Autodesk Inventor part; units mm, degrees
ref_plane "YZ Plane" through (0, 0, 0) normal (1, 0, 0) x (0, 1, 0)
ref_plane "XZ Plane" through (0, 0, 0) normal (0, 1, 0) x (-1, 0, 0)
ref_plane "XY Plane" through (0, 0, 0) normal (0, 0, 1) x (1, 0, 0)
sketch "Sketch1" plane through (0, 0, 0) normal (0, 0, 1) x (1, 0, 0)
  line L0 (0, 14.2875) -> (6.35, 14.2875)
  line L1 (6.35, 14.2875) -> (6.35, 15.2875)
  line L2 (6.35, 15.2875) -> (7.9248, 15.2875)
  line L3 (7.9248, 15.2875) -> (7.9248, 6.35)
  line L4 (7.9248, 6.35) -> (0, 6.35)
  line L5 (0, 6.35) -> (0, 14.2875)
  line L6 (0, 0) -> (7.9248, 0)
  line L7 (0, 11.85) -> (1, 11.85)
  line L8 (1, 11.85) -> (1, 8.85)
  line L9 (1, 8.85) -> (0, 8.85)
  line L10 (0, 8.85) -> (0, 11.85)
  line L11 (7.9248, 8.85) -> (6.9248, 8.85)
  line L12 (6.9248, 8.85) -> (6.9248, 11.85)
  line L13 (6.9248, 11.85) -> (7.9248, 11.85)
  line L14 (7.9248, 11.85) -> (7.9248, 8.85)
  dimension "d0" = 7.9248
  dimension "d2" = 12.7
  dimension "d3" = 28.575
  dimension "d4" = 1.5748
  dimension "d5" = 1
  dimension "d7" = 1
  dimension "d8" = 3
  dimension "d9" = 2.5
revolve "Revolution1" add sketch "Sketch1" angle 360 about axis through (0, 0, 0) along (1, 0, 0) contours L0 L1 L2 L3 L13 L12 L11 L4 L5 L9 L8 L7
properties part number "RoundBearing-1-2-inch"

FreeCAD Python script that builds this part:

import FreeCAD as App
import Part
import Sketcher

V = App.Vector
Q = App.Units.Quantity


def add_polygon(sketch, points):
    """Adds a closed chain of lines whose ends are joined by coincident constraints."""
    first, n = sketch.GeometryCount, len(points)
    for a, b in zip(points, points[1:] + points[:1]):
        sketch.addGeometry(Part.LineSegment(App.Vector(*a, 0), App.Vector(*b, 0)), False)
    for i in range(n):
        sketch.addConstraint(Sketcher.Constraint("Coincident", first + i, 2, first + (i + 1) % n, 1))

doc = App.newDocument("Part")
params = doc.addObject("Spreadsheet::Sheet", "Params")
for row, (alias, value) in enumerate([
    ("sketch1_width", "0.312 in"),
    ("sketch1_width2", "0.062 in"),
    ("revolution_angle", "360 deg"),
], start=1):
    params.set(f"A{row}", alias)
    params.set(f"B{row}", "=" + value)
    params.setAlias(f"B{row}", alias)

body = doc.addObject("PartDesign::Body", "Body")

sketch1 = doc.addObject("Sketcher::SketchObject", "Sketch")
body.addObject(sketch1)
sketch1.AttachmentSupport = (doc.XY_Plane, [""])
sketch1.MapMode = "FlatFace"
add_polygon(sketch1, [(6.3, 14.3), (0, 14.3), (0, 11.8), (1, 11.8), (1, 8.8), (0, 8.8), (0, 6.3), (7.9, 6.3), (7.9, 8.8), (6.9, 8.8), (6.9, 11.8), (7.9, 11.8), (7.9, 15.3), (6.3, 15.3)])
sketch1.addConstraint([
    Sketcher.Constraint("Horizontal", 0),
    Sketcher.Constraint("Vertical", 1),
    Sketcher.Constraint("Horizontal", 2),
    Sketcher.Constraint("Vertical", 3),
    Sketcher.Constraint("Horizontal", 4),
    Sketcher.Constraint("Vertical", 5),
    Sketcher.Constraint("Horizontal", 6),
    Sketcher.Constraint("Vertical", 7),
    Sketcher.Constraint("Horizontal", 8),
    Sketcher.Constraint("Vertical", 9),
    Sketcher.Constraint("Horizontal", 10),
    Sketcher.Constraint("Vertical", 11),
    Sketcher.Constraint("Horizontal", 12),
    Sketcher.Constraint("Vertical", 13),
    Sketcher.Constraint("PointOnObject", 0, 2, -2),
    Sketcher.Constraint("PointOnObject", 4, 2, -2),
    Sketcher.Constraint("Horizontal", 4, 2, 7, 2),
    Sketcher.Constraint("Horizontal", 2, 2, 9, 2),
    Sketcher.Constraint("Vertical", 7, 2, 10, 2),
    Sketcher.Constraint("Equal", 4, 8),
    Sketcher.Constraint("Equal", 10, 13),
    Sketcher.Constraint("DistanceX", 6, 1, 6, 2, Q("0.312 in")),
    Sketcher.Constraint("DistanceX", 12, 2, 12, 1, Q("0.062 in")),
    Sketcher.Constraint("DistanceY", 3, 2, 3, 1, Q("0.1181 in")),
    Sketcher.Constraint("DistanceX", 2, 1, 2, 2, Q("1 mm")),
    Sketcher.Constraint("DistanceY", 5, 2, 5, 1, Q("2.5 mm")),
    Sketcher.Constraint("DistanceY", -1, 1, 5, 2, Q("0.25 in")),
    Sketcher.Constraint("DistanceY", -1, 1, 0, 2, Q("0.5625 in")),
])
sketch1.setExpression("Constraints[35]", "Params.sketch1_width")
sketch1.setExpression("Constraints[36]", "Params.sketch1_width2")
revolution = doc.addObject("PartDesign::Revolution", "Revolution")
body.addObject(revolution)
revolution.Profile = sketch1
revolution.ReferenceAxis = (sketch1, ["H_Axis"])
revolution.setExpression("Angle", "Params.revolution_angle")

doc.recompute()
